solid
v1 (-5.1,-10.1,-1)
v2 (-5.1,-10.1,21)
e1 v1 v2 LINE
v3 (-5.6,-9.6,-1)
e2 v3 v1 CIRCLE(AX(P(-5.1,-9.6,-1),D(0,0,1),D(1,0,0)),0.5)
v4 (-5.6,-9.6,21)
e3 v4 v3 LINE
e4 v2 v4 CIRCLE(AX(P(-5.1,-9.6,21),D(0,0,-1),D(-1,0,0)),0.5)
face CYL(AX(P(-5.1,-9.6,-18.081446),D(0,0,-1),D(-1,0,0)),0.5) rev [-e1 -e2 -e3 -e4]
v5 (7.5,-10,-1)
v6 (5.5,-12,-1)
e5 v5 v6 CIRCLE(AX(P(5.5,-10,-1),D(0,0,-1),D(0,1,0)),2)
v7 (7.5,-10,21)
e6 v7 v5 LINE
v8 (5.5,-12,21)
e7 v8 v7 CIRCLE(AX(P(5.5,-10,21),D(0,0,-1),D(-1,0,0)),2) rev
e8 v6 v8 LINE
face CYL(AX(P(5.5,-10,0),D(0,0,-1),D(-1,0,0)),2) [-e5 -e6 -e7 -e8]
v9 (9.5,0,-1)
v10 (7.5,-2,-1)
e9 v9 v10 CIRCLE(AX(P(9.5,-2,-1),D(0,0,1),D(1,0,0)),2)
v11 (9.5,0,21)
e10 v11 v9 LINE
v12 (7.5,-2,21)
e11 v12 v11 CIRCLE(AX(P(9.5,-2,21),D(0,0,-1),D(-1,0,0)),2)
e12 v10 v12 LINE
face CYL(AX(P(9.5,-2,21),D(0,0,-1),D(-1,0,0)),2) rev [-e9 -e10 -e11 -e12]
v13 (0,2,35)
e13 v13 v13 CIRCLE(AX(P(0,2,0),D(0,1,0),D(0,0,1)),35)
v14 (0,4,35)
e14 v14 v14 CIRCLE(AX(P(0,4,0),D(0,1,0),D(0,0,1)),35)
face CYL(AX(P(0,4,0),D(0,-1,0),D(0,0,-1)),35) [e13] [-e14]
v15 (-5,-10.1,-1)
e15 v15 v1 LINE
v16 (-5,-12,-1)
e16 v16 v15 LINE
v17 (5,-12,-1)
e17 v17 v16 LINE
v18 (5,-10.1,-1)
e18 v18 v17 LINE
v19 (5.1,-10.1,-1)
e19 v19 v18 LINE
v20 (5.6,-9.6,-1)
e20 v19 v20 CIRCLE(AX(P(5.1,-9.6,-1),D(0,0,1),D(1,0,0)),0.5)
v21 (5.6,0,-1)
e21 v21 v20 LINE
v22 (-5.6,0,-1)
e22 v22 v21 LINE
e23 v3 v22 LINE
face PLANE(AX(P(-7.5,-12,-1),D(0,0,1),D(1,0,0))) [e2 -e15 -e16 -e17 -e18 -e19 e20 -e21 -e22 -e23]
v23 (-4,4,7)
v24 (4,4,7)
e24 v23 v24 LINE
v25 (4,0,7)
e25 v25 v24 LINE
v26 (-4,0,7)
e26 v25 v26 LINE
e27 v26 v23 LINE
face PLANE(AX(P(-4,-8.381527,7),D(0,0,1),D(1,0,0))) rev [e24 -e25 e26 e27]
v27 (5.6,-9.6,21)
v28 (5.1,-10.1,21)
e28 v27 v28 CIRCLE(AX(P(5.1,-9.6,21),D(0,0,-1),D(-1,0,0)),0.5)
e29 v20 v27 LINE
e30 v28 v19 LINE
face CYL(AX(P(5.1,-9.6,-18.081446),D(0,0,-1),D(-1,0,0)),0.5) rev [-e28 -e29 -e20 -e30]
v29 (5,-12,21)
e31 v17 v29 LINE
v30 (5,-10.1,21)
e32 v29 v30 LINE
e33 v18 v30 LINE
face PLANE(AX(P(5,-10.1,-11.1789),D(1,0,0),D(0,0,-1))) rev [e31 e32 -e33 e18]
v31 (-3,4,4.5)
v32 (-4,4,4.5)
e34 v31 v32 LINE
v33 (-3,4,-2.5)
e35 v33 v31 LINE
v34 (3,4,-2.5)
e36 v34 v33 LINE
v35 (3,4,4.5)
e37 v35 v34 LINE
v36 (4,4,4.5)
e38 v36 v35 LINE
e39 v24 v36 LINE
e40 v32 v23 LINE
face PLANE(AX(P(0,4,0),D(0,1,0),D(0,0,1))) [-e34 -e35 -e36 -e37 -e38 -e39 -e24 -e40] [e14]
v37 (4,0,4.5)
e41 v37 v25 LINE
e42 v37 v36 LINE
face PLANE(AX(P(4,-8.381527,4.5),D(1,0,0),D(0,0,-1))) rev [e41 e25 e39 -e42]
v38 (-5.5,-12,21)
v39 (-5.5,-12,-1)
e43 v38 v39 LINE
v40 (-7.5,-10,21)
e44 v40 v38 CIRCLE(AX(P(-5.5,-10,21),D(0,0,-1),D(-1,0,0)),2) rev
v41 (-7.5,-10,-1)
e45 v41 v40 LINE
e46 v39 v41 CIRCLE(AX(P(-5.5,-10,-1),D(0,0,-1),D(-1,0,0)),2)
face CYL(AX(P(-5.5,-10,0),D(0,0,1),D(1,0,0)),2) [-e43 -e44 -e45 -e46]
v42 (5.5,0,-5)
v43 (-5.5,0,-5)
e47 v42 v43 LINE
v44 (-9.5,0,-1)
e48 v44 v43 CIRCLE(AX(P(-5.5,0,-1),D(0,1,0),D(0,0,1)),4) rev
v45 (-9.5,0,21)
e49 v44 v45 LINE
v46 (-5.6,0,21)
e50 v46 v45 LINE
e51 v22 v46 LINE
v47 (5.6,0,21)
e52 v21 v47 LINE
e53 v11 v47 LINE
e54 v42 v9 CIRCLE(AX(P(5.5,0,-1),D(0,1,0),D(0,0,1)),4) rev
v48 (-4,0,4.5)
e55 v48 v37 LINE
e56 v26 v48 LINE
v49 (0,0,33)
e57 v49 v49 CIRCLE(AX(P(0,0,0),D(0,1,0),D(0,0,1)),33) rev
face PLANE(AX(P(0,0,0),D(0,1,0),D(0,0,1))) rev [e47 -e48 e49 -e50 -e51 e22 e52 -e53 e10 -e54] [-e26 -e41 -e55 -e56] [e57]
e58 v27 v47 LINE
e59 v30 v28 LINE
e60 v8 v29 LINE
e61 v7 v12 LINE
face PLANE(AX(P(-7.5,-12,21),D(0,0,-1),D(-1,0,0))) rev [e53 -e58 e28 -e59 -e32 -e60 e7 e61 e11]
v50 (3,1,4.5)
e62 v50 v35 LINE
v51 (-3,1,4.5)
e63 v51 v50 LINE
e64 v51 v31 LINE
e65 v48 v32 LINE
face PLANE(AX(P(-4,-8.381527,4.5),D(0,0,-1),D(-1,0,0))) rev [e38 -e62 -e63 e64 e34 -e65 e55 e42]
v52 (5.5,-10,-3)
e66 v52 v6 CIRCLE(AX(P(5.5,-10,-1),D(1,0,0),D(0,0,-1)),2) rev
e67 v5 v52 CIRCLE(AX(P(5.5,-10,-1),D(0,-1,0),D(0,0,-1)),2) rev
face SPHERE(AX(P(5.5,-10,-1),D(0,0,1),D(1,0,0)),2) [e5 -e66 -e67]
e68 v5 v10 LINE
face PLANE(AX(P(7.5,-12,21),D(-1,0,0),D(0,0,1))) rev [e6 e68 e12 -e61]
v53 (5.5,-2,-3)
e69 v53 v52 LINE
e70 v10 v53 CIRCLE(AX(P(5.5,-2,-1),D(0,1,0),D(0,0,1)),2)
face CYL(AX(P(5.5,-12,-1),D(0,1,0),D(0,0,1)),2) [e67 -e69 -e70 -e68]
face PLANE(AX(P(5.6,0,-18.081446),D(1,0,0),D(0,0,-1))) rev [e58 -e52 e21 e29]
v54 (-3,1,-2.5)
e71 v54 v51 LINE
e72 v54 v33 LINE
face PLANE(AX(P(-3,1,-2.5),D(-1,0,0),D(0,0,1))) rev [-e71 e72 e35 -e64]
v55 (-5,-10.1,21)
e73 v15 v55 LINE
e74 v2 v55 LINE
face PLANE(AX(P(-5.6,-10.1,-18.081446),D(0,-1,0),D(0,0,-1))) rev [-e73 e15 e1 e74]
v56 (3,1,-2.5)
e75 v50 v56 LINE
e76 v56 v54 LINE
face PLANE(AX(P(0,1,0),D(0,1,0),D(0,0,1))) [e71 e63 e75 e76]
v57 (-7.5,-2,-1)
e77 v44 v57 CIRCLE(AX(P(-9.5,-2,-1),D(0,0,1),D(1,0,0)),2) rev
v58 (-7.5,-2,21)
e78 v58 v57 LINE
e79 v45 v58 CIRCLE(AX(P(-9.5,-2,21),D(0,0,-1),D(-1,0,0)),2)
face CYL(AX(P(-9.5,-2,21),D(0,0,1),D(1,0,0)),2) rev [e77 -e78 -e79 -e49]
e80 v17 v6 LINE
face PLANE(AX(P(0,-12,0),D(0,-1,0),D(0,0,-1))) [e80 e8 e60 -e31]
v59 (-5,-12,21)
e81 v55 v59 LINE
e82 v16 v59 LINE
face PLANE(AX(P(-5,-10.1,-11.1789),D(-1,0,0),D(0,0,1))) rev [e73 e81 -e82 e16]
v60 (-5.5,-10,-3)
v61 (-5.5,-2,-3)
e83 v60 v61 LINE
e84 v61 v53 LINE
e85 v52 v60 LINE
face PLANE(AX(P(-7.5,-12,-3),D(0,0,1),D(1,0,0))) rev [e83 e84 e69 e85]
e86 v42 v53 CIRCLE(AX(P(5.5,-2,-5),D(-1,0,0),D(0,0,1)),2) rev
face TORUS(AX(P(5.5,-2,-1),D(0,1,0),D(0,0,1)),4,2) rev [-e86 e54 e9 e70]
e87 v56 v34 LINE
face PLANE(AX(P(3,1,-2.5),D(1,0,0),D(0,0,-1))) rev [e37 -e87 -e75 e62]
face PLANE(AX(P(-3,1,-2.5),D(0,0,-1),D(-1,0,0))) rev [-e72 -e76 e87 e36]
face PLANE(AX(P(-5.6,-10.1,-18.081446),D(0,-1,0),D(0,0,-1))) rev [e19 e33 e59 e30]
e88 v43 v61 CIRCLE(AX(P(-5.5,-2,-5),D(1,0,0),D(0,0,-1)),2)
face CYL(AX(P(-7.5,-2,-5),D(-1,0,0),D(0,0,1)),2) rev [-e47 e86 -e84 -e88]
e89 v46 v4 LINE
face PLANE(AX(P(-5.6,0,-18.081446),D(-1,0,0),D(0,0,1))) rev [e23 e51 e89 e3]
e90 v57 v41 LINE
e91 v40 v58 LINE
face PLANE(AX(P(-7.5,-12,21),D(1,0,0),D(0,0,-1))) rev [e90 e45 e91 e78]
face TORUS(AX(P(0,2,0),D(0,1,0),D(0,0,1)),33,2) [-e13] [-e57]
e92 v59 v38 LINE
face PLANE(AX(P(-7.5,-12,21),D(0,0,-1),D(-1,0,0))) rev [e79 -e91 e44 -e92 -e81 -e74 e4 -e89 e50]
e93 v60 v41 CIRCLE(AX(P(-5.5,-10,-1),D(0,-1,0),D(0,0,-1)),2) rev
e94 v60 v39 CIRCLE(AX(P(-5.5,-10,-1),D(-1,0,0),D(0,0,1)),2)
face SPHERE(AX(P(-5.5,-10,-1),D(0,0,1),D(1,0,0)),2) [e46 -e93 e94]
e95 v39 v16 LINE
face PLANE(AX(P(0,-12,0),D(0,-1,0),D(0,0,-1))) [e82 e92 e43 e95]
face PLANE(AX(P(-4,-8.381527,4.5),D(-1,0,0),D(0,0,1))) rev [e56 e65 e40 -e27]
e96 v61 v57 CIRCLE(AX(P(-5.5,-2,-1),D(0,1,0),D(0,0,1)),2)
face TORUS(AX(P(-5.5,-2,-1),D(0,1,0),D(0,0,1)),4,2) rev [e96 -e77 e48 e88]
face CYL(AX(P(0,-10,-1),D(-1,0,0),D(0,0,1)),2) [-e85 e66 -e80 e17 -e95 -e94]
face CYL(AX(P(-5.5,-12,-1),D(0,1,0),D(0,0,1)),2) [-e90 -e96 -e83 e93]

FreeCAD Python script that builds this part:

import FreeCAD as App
import Part
import Sketcher

V = App.Vector


def edges_at(feature, points):
    """Names of the edges that pass closest to the given points."""
    edges = feature.Shape.Edges
    near = lambda p: min(range(len(edges)), key=lambda i: edges[i].distToShape(Part.Vertex(*p))[0])
    return sorted({f"Edge{near(p) + 1}" for p in points})

doc = App.newDocument("Part")
params = doc.addObject("Spreadsheet::Sheet", "Params")
for row, (alias, value) in enumerate([
    ("sketch1_diameter", "70 mm"),
    ("pad1_length", "4 mm"),
    ("fillet_radius", "2 mm"),
    ("sketch2_width", "6 mm"),
    ("sketch2_height", "7 mm"),
    ("pocket1_length", "3 mm"),
    ("sketch3_width", "8 mm"),
    ("sketch3_height", "2.5 mm"),
    ("pocket2_length", "4 mm"),
    ("sketch4_width", "15 mm"),
    ("sketch4_height", "24 mm"),
    ("pad2_length", "12 mm"),
    ("sketch5_width", "11.2 mm"),
    ("sketch5_height", "10.1 mm"),
    ("pocket3_length", "22 mm"),
    ("fillet2_radius", "2 mm"),
    ("sketch6_width", "10 mm"),
    ("sketch6_height", "1.9 mm"),
    ("pocket4_length", "22 mm"),
    ("fillet3_radius", "0.5 mm"),
], start=1):
    params.set(f"A{row}", alias)
    params.set(f"B{row}", "=" + value)
    params.setAlias(f"B{row}", alias)

body = doc.addObject("PartDesign::Body", "Body")

sketch1 = body.newObject("Sketcher::SketchObject", "Sketch")
sketch1.AttachmentSupport = (doc.getObject("XZ_Plane"), [""])
sketch1.MapMode = "FlatFace"
sketch1.addGeometry(Part.Circle(V(0, 0, 0), V(0, 0, 1), 35), False)
sketch1.addConstraint([
    Sketcher.Constraint("Coincident", 0, 3, -1, 1),
    Sketcher.Constraint("Diameter", 0, 70.0),
])
sketch1.setExpression("Constraints[1]", "Params.sketch1_diameter")
pad1 = body.newObject("PartDesign::Pad", "Pad")
pad1.Profile = sketch1
pad1.setExpression("Length", "Params.pad1_length")
pad1.Reversed = True
doc.recompute()

fillet = body.newObject("PartDesign::Fillet", "Fillet")
fillet.Base = (pad1, edges_at(pad1, [(0, 0, -35)]))
fillet.setExpression("Radius", "Params.fillet_radius")

sketch2 = body.newObject("Sketcher::SketchObject", "Sketch001")
sketch2.AttachmentSupport = (doc.getObject("XZ_Plane"), [""])
sketch2.MapMode = "FlatFace"
sketch2.AttachmentOffset = App.Placement(V(0, 0, -4), App.Rotation())
sketch2.addGeometry([
    Part.LineSegment(V(-3, -2, 0), V(-3, 4, 0)),
    Part.LineSegment(V(-3, 4, 0), V(3, 4, 0)),
    Part.LineSegment(V(3, 4, 0), V(3, -2, 0)),
    Part.LineSegment(V(3, -2, 0), V(-3, -2, 0)),
], False)
sketch2.addConstraint([
    Sketcher.Constraint("Coincident", 0, 2, 1, 1),
    Sketcher.Constraint("Coincident", 1, 2, 2, 1),
    Sketcher.Constraint("Coincident", 2, 2, 3, 1),
    Sketcher.Constraint("Coincident", 3, 2, 0, 1),
    Sketcher.Constraint("Vertical", 0),
    Sketcher.Constraint("Horizontal", 1),
    Sketcher.Constraint("Vertical", 2),
    Sketcher.Constraint("Horizontal", 3),
    Sketcher.Constraint("DistanceX", 1, 1, 1, 2, 6.0),
    Sketcher.Constraint("DistanceY", 0, 1, 0, 2, 7.0),
    Sketcher.Constraint("DistanceX", 0, 2, -1, 1, 3.0),
    Sketcher.Constraint("DistanceY", -1, 1, 0, 2, 4.5),
])
sketch2.setExpression("Constraints[8]", "Params.sketch2_width")
sketch2.setExpression("Constraints[9]", "Params.sketch2_height")
pocket1 = body.newObject("PartDesign::Pocket", "Pocket")
pocket1.Profile = sketch2
pocket1.setExpression("Length", "Params.pocket1_length")
pocket1.Reversed = True

sketch3 = body.newObject("Sketcher::SketchObject", "Sketch002")
sketch3.AttachmentSupport = (doc.getObject("XZ_Plane"), [""])
sketch3.MapMode = "FlatFace"
sketch3.AttachmentOffset = App.Placement(V(0, 0, -4), App.Rotation())
sketch3.addGeometry([
    Part.LineSegment(V(-4, 4.5, 0), V(-4, 7, 0)),
    Part.LineSegment(V(-4, 7, 0), V(4, 7, 0)),
    Part.LineSegment(V(4, 7, 0), V(4, 4.5, 0)),
    Part.LineSegment(V(4, 4.5, 0), V(-4, 4.5, 0)),
], False)
sketch3.addConstraint([
    Sketcher.Constraint("Coincident", 0, 2, 1, 1),
    Sketcher.Constraint("Coincident", 1, 2, 2, 1),
    Sketcher.Constraint("Coincident", 2, 2, 3, 1),
    Sketcher.Constraint("Coincident", 3, 2, 0, 1),
    Sketcher.Constraint("Vertical", 0),
    Sketcher.Constraint("Horizontal", 1),
    Sketcher.Constraint("Vertical", 2),
    Sketcher.Constraint("Horizontal", 3),
    Sketcher.Constraint("DistanceX", 1, 1, 1, 2, 8.0),
    Sketcher.Constraint("DistanceY", 0, 1, 0, 2, 2.5),
    Sketcher.Constraint("DistanceX", 0, 2, -1, 1, 4.0),
    Sketcher.Constraint("DistanceY", -1, 1, 0, 2, 7.0),
])
sketch3.setExpression("Constraints[8]", "Params.sketch3_width")
sketch3.setExpression("Constraints[9]", "Params.sketch3_height")
pocket2 = body.newObject("PartDesign::Pocket", "Pocket001")
pocket2.Profile = sketch3
pocket2.setExpression("Length", "Params.pocket2_length")
pocket2.Reversed = True

sketch4 = body.newObject("Sketcher::SketchObject", "Sketch003")
sketch4.AttachmentSupport = (doc.getObject("XZ_Plane"), [""])
sketch4.MapMode = "FlatFace"
sketch4.addGeometry([
    Part.LineSegment(V(-8, 21, 0), V(-8, -3, 0)),
    Part.LineSegment(V(-8, -3, 0), V(8, -3, 0)),
    Part.LineSegment(V(8, -3, 0), V(8, 21, 0)),
    Part.LineSegment(V(8, 21, 0), V(-8, 21, 0)),
], False)
sketch4.addConstraint([
    Sketcher.Constraint("Coincident", 0, 2, 1, 1),
    Sketcher.Constraint("Coincident", 1, 2, 2, 1),
    Sketcher.Constraint("Coincident", 2, 2, 3, 1),
    Sketcher.Constraint("Coincident", 3, 2, 0, 1),
    Sketcher.Constraint("Vertical", 0),
    Sketcher.Constraint("Horizontal", 1),
    Sketcher.Constraint("Vertical", 2),
    Sketcher.Constraint("Horizontal", 3),
    Sketcher.Constraint("DistanceX", 1, 1, 1, 2, 15.0),
    Sketcher.Constraint("DistanceY", 0, 2, 0, 1, 24.0),
    Sketcher.Constraint("DistanceY", 0, 2, -1, 1, 3.0),
    Sketcher.Constraint("DistanceX", 0, 2, -1, 1, 7.5),
])
sketch4.setExpression("Constraints[8]", "Params.sketch4_width")
sketch4.setExpression("Constraints[9]", "Params.sketch4_height")
pad2 = body.newObject("PartDesign::Pad", "Pad001")
pad2.Profile = sketch4
pad2.setExpression("Length", "Params.pad2_length")

sketch5 = body.newObject("Sketcher::SketchObject", "Sketch004")
sketch5.AttachmentSupport = (doc.getObject("XY_Plane"), [""])
sketch5.MapMode = "FlatFace"
sketch5.AttachmentOffset = App.Placement(V(0, 0, 21), App.Rotation())
sketch5.addGeometry([
    Part.LineSegment(V(-6, 0, 0), V(-6, -10, 0)),
    Part.LineSegment(V(-6, -10, 0), V(6, -10, 0)),
    Part.LineSegment(V(6, -10, 0), V(6, 0, 0)),
    Part.LineSegment(V(6, 0, 0), V(-6, 0, 0)),
], False)
sketch5.addConstraint([
    Sketcher.Constraint("Coincident", 0, 2, 1, 1),
    Sketcher.Constraint("Coincident", 1, 2, 2, 1),
    Sketcher.Constraint("Coincident", 2, 2, 3, 1),
    Sketcher.Constraint("Coincident", 3, 2, 0, 1),
    Sketcher.Constraint("Vertical", 0),
    Sketcher.Constraint("Horizontal", 1),
    Sketcher.Constraint("Vertical", 2),
    Sketcher.Constraint("Horizontal", 3),
    Sketcher.Constraint("Symmetric", 2, 2, 3, 2, -1, 1),
    Sketcher.Constraint("DistanceX", 1, 1, 1, 2, 11.2),
    Sketcher.Constraint("DistanceY", 0, 2, 0, 1, 10.1),
])
sketch5.setExpression("Constraints[9]", "Params.sketch5_width")
sketch5.setExpression("Constraints[10]", "Params.sketch5_height")
pocket3 = body.newObject("PartDesign::Pocket", "Pocket002")
pocket3.Profile = sketch5
pocket3.setExpression("Length", "Params.pocket3_length")
doc.recompute()

fillet2 = body.newObject("PartDesign::Fillet", "Fillet001")
fillet2.Base = (pocket3, edges_at(pocket3, [
    (-7.5, 0, 9),
    (0, 0, -3),
    (-7.5, -6, -3),
    (7.5, 0, 9),
    (7.5, -6, -3),
    (-7.5, -12, 9),
    (0, -12, -3),
    (7.5, -12, 9),
]))
fillet2.setExpression("Radius", "Params.fillet2_radius")

sketch6 = body.newObject("Sketcher::SketchObject", "Sketch005")
sketch6.AttachmentSupport = (doc.getObject("XY_Plane"), [""])
sketch6.MapMode = "FlatFace"
sketch6.AttachmentOffset = App.Placement(V(0, 0, 21), App.Rotation())
sketch6.addGeometry([
    Part.LineSegment(V(-5, -10.1, 0), V(-5, -12, 0)),
    Part.LineSegment(V(-5, -12, 0), V(5, -12, 0)),
    Part.LineSegment(V(5, -12, 0), V(5, -10.1, 0)),
    Part.LineSegment(V(5, -10.1, 0), V(-5, -10.1, 0)),
], False)
sketch6.addConstraint([
    Sketcher.Constraint("Coincident", 0, 2, 1, 1),
    Sketcher.Constraint("Coincident", 1, 2, 2, 1),
    Sketcher.Constraint("Coincident", 2, 2, 3, 1),
    Sketcher.Constraint("Coincident", 3, 2, 0, 1),
    Sketcher.Constraint("Vertical", 0),
    Sketcher.Constraint("Horizontal", 1),
    Sketcher.Constraint("Vertical", 2),
    Sketcher.Constraint("Horizontal", 3),
    Sketcher.Constraint("DistanceX", 1, 1, 1, 2, 10.0),
    Sketcher.Constraint("DistanceY", 0, 2, 0, 1, 1.9),
    Sketcher.Constraint("DistanceX", 0, 2, -1, 1, 5.0),
    Sketcher.Constraint("DistanceY", 0, 2, -1, 1, 12.0),
])
sketch6.setExpression("Constraints[8]", "Params.sketch6_width")
sketch6.setExpression("Constraints[9]", "Params.sketch6_height")
pocket4 = body.newObject("PartDesign::Pocket", "Pocket003")
pocket4.Profile = sketch6
pocket4.setExpression("Length", "Params.pocket4_length")
doc.recompute()

fillet3 = body.newObject("PartDesign::Fillet", "Fillet002")
fillet3.Base = (pocket4, edges_at(pocket4, [(-5.6, -10.1, 10), (5.6, -10.1, 10)]))
fillet3.setExpression("Radius", "Params.fillet3_radius")

doc.recompute()
